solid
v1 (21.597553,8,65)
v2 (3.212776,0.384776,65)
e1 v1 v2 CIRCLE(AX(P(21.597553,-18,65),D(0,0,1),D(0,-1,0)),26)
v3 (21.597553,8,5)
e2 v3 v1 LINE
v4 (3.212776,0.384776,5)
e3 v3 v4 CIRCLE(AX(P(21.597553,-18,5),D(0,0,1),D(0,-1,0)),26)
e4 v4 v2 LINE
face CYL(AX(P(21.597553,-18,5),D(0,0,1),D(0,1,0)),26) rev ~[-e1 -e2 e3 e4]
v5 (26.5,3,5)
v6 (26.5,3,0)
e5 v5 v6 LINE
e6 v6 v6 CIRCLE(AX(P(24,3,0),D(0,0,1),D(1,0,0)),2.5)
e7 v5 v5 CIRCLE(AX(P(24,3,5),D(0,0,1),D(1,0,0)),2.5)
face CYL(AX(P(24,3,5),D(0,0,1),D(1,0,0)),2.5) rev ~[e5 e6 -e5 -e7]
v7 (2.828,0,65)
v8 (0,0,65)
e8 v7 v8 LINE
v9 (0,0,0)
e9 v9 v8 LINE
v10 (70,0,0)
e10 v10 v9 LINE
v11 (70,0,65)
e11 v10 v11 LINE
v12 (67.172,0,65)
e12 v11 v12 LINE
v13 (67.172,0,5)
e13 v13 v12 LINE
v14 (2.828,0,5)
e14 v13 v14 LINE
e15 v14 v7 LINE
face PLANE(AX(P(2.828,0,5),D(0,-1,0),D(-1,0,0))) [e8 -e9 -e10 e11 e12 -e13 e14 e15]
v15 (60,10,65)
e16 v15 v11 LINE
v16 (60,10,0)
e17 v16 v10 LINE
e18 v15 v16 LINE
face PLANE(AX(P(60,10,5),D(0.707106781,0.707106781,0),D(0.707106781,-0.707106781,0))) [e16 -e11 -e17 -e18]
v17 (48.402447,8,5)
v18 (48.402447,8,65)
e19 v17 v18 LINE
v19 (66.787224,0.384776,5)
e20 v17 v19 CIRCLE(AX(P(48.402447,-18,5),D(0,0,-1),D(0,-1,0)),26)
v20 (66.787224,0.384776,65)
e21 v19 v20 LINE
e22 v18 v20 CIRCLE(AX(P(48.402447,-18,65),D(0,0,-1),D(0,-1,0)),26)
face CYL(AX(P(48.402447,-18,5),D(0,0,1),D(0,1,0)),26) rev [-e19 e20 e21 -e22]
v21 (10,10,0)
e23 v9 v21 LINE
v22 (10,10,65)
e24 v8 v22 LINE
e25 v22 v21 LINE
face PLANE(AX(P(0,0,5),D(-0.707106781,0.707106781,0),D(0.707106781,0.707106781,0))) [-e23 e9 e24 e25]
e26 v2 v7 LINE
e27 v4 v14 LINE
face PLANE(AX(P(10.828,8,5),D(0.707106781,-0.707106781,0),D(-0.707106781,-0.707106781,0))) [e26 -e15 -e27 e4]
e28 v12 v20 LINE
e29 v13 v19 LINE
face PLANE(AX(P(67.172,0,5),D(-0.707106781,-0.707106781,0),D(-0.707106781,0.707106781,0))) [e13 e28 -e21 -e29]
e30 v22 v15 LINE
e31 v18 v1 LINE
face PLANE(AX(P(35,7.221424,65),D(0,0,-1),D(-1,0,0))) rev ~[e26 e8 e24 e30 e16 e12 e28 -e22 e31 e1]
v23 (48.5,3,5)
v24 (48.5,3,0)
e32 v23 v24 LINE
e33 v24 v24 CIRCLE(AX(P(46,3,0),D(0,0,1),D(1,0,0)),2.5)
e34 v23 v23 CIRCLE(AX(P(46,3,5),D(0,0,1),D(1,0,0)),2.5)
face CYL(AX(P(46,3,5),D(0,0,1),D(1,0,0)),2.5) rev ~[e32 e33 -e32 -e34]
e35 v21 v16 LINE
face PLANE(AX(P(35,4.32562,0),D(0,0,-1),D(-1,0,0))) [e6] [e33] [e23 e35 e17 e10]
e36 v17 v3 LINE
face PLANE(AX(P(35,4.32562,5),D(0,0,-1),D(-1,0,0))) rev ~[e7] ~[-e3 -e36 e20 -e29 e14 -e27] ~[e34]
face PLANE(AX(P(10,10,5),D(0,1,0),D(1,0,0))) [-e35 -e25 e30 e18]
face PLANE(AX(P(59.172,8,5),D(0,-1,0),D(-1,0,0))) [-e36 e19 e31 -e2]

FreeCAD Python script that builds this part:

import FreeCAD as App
import Part
import Sketcher
from FreeCAD import Vector


def edges_at(feature, points):
    """Names of the edges that pass closest to the given points."""
    edges = feature.Shape.Edges
    near = lambda p: min(range(len(edges)), key=lambda i: edges[i].distToShape(Part.Vertex(*p))[0])
    return sorted({f"Edge{near(p) + 1}" for p in points})


def add_polygon(sketch, points):
    """Adds a closed chain of lines whose ends are joined by coincident constraints."""
    first, n = sketch.GeometryCount, len(points)
    for a, b in zip(points, points[1:] + points[:1]):
        sketch.addGeometry(Part.LineSegment(App.Vector(*a, 0), App.Vector(*b, 0)), False)
    for i in range(n):
        sketch.addConstraint(Sketcher.Constraint("Coincident", first + i, 2, first + (i + 1) % n, 1))

doc = App.newDocument("Part")
body = doc.addObject("PartDesign::Body", "Body")

# Sketch on XY plane
sketch1 = body.newObject("Sketcher::SketchObject", "Sketch")
sketch1.AttachmentSupport = (doc.getObject("XY_Plane"), [""])
sketch1.MapMode = "FlatFace"
add_polygon(sketch1, [(10, 10), (0, 0), (70, 0), (60, 10)])  # lines 0-3
sketch1.addConstraint([
    Sketcher.Constraint("Horizontal", 1),
    Sketcher.Constraint("Horizontal", 3),
    Sketcher.Constraint("Coincident", 0, 2, -1, 1),
    Sketcher.Constraint("Perpendicular", 0, 2),
    Sketcher.Constraint("Equal", 0, 2),
    Sketcher.Constraint("DistanceX", 1, 1, 1, 2, 70.0),
    Sketcher.Constraint("DistanceX", 3, 2, 3, 1, 50.0),
])
pad1 = body.newObject("PartDesign::Pad", "Pad")
pad1.Profile = sketch1
pad1.Length = 5

# Sketch on XY plane
sketch2 = body.newObject("Sketcher::SketchObject", "Sketch001")
sketch2.AttachmentSupport = (doc.getObject("XY_Plane"), [""])
sketch2.MapMode = "FlatFace"
sketch2.AttachmentOffset = App.Placement(Vector(0, 0, 5), App.Rotation())
add_polygon(sketch2, [(10, 10), (0, 0), (2.8, 0), (10.8, 8), (59.2, 8), (67.2, 0), (70, 0), (60, 10)])  # lines 0-7
sketch2.addConstraint([
    Sketcher.Constraint("Horizontal", 1),
    Sketcher.Constraint("Horizontal", 3),
    Sketcher.Constraint("Horizontal", 5),
    Sketcher.Constraint("Horizontal", 7),
    Sketcher.Constraint("Coincident", 0, 2, -1, 1),
    Sketcher.Constraint("PointOnObject", 4, 2, -1),
    Sketcher.Constraint("Parallel", 0, 2),
    Sketcher.Constraint("Perpendicular", 2, 4),
    Sketcher.Constraint("Parallel", 4, 6),
    Sketcher.Constraint("Equal", 1, 5),
    Sketcher.Constraint("Equal", 2, 4),
    Sketcher.Constraint("DistanceX", 7, 2, 7, 1, 50.0),
    Sketcher.Constraint("DistanceY", -1, 1, 2, 2, 8.0),
    Sketcher.Constraint("DistanceX", -1, 1, 5, 2, 70.0),
    Sketcher.Constraint("DistanceX", 1, 1, 1, 2, 2.828),
])
pad2 = body.newObject("PartDesign::Pad", "Pad001")
pad2.Profile = sketch2
pad2.Length = 60
doc.recompute()

fillet = body.newObject("PartDesign::Fillet", "Fillet")
fillet.Base = (pad2, edges_at(pad2, [(59.172, 8, 35), (10.828, 8, 35)]))
fillet.Radius = 26

# Sketch on XY plane
sketch3 = body.newObject("Sketcher::SketchObject", "Sketch002")
sketch3.AttachmentSupport = (doc.getObject("XY_Plane"), [""])
sketch3.MapMode = "FlatFace"
sketch3.AttachmentOffset = App.Placement(Vector(0, 0, 5), App.Rotation())
sketch3.addGeometry([
    Part.Circle(Vector(24, 3, 0), Vector(0, 0, 1), 2.5),
    Part.Circle(Vector(46, 3, 0), Vector(0, 0, 1), 2.5),
], False)
sketch3.addConstraint([
    Sketcher.Constraint("Equal", 0, 1),
    Sketcher.Constraint("Horizontal", 0, 3, 1, 3),
    Sketcher.Constraint("Diameter", 0, 5.0),
    Sketcher.Constraint("DistanceX", -1, 1, 0, 3, 24.0),
    Sketcher.Constraint("DistanceY", -1, 1, 0, 3, 3.0),
    Sketcher.Constraint("DistanceX", -1, 1, 1, 3, 46.0),
])
pocket1 = body.newObject("PartDesign::Pocket", "Pocket")
pocket1.Profile = sketch3
pocket1.Length = 5

doc.recompute()
